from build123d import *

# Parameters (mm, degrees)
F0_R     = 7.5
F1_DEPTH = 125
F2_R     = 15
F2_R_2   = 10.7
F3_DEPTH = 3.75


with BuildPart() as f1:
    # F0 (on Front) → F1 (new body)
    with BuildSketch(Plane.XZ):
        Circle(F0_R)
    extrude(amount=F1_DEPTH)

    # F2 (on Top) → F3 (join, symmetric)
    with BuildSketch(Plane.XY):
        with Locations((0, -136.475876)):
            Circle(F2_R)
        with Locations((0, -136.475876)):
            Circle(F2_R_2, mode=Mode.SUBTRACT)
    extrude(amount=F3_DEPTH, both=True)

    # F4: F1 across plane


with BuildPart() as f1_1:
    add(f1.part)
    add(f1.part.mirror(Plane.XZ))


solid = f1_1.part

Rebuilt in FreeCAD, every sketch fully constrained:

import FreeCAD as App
import Part
import Sketcher
Q = App.Units.Quantity

doc = App.newDocument("Part")
params = doc.addObject("Spreadsheet::Sheet", "Params")
for row, (alias, value) in enumerate([
    ("sketch1_diameter", "15 mm"),
    ("pad1_length", "125 mm"),
    ("sketch2_diameter", "30 mm"),
    ("sketch2_diameter2", "21.4 mm"),
    ("pad2_length", "7.5 mm"),
], start=1):
    params.set(f"A{row}", alias)
    params.set(f"B{row}", "=" + value)
    params.setAlias(f"B{row}", alias)

body = doc.addObject("PartDesign::Body", "Body")

# Sketch on XZ plane
sketch1 = body.newObject("Sketcher::SketchObject", "Sketch")
sketch1.AttachmentSupport = (doc.getObject("XZ_Plane"), [""])
sketch1.MapMode = "FlatFace"
sketch1.addGeometry(Part.Circle(App.Vector(0, 0, 0), App.Vector(0, 0, 1), 8), False)
sketch1.addConstraint([
    Sketcher.Constraint("Coincident", 0, 3, -1, 1),
    Sketcher.Constraint("Diameter", 0, Q("15 mm")),
])
sketch1.setExpression("Constraints[1]", "Params.sketch1_diameter")
pad1 = body.newObject("PartDesign::Pad", "Pad")
pad1.Profile = sketch1
pad1.setExpression("Length", "Params.pad1_length")

# Sketch on XY plane
sketch2 = body.newObject("Sketcher::SketchObject", "Sketch001")
sketch2.AttachmentSupport = (doc.getObject("XY_Plane"), [""])
sketch2.MapMode = "FlatFace"
sketch2.addGeometry([
    Part.Circle(App.Vector(0, -136, 0), App.Vector(0, 0, 1), 15),
    Part.Circle(App.Vector(0, -136, 0), App.Vector(0, 0, 1), 11),
], False)
sketch2.addConstraint([
    Sketcher.Constraint("Coincident", 1, 3, 0, 3),
    Sketcher.Constraint("PointOnObject", 0, 3, -2),
    Sketcher.Constraint("Diameter", 0, Q("30 mm")),
    Sketcher.Constraint("Diameter", 1, Q("21.4 mm")),
    Sketcher.Constraint("DistanceY", 0, 3, -1, 1, Q("136.475876 mm")),
])
sketch2.setExpression("Constraints[2]", "Params.sketch2_diameter")
sketch2.setExpression("Constraints[3]", "Params.sketch2_diameter2")
pad2 = body.newObject("PartDesign::Pad", "Pad001")
pad2.Profile = sketch2
pad2.setExpression("Length", "Params.pad2_length")
pad2.Midplane = True
body2 = doc.addObject("PartDesign::Body", "Body001")
doc.recompute()

body2.BaseFeature = body
doc.recompute()

mirroring = doc.addObject("Part::Mirroring", "Mirroring")
mirroring.Source = body
mirroring.Base = App.Vector(0, 0, 0)
mirroring.Normal = App.Vector(0, -1, 0)
body3 = doc.addObject("PartDesign::Body", "Body002")
body3.BaseFeature = mirroring
boolean = body2.newObject("PartDesign::Boolean", "Boolean")
boolean.Type = "Fuse"
boolean.addObjects([body3])
doc.recompute()
mirroring.Visibility = False

doc.recompute()
